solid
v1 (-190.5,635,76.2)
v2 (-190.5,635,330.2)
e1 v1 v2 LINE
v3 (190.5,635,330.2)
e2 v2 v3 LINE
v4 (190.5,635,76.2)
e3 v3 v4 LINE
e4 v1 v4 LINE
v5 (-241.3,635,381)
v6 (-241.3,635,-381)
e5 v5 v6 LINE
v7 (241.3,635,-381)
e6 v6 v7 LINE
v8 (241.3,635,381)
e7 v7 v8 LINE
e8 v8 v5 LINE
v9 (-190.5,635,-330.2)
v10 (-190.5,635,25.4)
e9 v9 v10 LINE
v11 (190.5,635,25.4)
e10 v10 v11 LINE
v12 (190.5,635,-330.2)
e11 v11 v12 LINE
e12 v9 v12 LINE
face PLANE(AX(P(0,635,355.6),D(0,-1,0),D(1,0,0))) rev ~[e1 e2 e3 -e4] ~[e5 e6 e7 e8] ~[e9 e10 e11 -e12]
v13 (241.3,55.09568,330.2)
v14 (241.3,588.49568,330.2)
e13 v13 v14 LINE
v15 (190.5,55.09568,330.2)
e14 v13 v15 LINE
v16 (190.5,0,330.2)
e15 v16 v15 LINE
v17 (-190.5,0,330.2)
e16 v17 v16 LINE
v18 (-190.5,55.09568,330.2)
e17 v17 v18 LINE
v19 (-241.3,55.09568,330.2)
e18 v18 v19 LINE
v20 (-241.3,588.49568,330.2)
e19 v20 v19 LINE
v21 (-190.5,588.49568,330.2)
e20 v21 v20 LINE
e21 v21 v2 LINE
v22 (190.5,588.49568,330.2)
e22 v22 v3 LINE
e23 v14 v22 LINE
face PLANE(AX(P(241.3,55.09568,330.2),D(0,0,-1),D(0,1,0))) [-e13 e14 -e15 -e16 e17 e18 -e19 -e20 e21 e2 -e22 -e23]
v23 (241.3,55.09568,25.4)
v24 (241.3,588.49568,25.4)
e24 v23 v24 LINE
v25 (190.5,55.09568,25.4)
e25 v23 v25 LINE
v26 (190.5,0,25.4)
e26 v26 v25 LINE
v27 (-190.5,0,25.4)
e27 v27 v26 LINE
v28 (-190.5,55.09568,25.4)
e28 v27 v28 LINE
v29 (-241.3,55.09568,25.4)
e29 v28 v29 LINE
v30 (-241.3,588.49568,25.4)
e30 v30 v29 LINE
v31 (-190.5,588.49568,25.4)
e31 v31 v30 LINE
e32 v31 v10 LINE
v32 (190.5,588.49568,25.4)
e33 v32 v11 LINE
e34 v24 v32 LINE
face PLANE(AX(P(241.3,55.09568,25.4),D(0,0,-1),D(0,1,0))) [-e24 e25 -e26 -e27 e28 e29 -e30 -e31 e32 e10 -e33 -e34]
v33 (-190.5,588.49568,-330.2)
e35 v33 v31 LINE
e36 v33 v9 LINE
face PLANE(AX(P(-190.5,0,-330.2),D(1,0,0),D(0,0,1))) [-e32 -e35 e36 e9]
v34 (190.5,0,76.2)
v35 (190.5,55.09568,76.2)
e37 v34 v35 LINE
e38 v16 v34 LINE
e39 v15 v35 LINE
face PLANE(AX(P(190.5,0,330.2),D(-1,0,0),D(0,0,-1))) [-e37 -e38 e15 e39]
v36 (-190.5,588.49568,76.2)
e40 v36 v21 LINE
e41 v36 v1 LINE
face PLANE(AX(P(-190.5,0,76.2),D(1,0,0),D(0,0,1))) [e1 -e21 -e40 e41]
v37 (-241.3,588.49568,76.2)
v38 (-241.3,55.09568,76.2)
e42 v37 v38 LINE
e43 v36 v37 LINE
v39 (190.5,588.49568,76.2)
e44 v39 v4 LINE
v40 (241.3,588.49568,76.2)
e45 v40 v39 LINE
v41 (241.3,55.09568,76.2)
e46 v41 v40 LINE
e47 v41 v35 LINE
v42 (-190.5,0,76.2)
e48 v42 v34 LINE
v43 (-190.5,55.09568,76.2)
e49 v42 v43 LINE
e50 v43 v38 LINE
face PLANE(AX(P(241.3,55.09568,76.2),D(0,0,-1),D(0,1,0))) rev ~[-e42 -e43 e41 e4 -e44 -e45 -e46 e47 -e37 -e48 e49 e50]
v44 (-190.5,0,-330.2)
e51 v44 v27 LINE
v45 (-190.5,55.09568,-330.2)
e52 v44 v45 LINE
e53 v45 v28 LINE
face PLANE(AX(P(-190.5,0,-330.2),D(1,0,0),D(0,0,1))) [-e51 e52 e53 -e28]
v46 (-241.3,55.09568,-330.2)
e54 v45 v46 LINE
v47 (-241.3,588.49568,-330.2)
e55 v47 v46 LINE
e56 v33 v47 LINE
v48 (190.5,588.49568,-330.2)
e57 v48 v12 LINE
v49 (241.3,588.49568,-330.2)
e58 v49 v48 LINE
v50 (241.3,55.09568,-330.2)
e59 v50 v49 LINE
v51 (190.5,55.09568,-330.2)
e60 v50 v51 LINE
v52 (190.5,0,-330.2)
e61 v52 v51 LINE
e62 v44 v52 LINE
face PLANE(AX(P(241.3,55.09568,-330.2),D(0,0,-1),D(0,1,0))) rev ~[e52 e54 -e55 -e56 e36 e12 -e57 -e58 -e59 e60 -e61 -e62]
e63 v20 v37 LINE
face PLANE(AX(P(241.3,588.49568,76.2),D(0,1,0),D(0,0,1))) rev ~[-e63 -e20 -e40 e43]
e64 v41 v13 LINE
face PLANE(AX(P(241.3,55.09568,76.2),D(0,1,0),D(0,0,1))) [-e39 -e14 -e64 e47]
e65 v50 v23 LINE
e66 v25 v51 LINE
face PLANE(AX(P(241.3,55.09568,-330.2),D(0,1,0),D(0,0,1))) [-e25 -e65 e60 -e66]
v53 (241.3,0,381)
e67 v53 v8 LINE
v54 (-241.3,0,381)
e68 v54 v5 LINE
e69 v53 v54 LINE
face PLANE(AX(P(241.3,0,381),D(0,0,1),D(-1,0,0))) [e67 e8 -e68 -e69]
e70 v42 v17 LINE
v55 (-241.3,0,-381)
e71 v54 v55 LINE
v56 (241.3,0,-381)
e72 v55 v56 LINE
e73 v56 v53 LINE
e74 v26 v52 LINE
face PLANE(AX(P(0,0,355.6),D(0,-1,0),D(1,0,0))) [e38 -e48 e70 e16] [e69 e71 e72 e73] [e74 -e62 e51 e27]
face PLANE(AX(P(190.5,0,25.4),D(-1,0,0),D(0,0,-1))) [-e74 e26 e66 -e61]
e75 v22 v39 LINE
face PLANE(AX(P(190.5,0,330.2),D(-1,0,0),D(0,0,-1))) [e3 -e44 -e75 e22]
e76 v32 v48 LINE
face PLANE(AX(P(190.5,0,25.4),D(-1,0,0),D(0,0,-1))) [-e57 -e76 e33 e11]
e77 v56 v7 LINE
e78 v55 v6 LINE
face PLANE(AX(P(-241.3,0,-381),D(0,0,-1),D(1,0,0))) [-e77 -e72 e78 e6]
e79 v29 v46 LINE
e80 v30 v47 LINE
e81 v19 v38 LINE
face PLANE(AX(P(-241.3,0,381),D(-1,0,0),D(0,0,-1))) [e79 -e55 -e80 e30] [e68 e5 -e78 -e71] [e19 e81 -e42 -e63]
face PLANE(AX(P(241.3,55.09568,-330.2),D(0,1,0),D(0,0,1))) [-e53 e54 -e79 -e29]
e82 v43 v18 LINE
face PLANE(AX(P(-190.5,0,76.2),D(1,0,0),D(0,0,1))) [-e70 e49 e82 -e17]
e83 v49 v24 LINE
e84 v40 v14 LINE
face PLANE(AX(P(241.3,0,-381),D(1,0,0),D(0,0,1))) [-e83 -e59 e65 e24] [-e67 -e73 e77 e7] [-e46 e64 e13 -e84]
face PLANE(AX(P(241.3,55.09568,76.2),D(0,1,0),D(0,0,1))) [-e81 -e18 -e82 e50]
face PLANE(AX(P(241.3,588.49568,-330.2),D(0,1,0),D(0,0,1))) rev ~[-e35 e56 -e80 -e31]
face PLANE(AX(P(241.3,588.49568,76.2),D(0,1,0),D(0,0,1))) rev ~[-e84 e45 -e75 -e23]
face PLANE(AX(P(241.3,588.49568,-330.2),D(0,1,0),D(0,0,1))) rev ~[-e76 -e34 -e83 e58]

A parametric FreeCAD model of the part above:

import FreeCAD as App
import Part
import Sketcher
Q = App.Units.Quantity


def add_polygon(sketch, points):
    """Adds a closed chain of lines whose ends are joined by coincident constraints."""
    first, n = sketch.GeometryCount, len(points)
    for a, b in zip(points, points[1:] + points[:1]):
        sketch.addGeometry(Part.LineSegment(App.Vector(*a, 0), App.Vector(*b, 0)), False)
    for i in range(n):
        sketch.addConstraint(Sketcher.Constraint("Coincident", first + i, 2, first + (i + 1) % n, 1))

doc = App.newDocument("Part")
params = doc.addObject("Spreadsheet::Sheet", "Params")
for row, (alias, value) in enumerate([
    ("sketch1_width", "19 in"),
    ("sketch1_width2", "15 in"),
    ("sketch1_height", "30 in"),
    ("sketch1_height2", "14 in"),
    ("sketch1_height3", "10 in"),
    ("pad1_length", "25 in"),
    ("sketch2_width", "21 in"),
    ("sketch2_height", "10 in"),
    ("sketch2_height2", "14 in"),
], start=1):
    params.set(f"A{row}", alias)
    params.set(f"B{row}", "=" + value)
    params.setAlias(f"B{row}", alias)

body = doc.addObject("PartDesign::Body", "Body")

sketch1 = doc.addObject("Sketcher::SketchObject", "Sketch")
body.addObject(sketch1)
sketch1.AttachmentSupport = (doc.XZ_Plane, [""])
sketch1.MapMode = "FlatFace"
add_polygon(sketch1, [(241.3, -381), (241.3, 381), (-241.3, 381), (-241.3, -381)])
add_polygon(sketch1, [(-190.5, 25.4), (190.5, 25.4), (190.5, -330.2), (-190.5, -330.2)])
add_polygon(sketch1, [(190.5, 330.2), (190.5, 76.2), (-190.5, 76.2), (-190.5, 330.2)])
sketch1.addConstraint([
    Sketcher.Constraint("Vertical", 0),
    Sketcher.Constraint("Horizontal", 1),
    Sketcher.Constraint("Vertical", 2),
    Sketcher.Constraint("Horizontal", 3),
    Sketcher.Constraint("Horizontal", 4),
    Sketcher.Constraint("Vertical", 5),
    Sketcher.Constraint("Horizontal", 6),
    Sketcher.Constraint("Vertical", 7),
    Sketcher.Constraint("Vertical", 8),
    Sketcher.Constraint("Horizontal", 9),
    Sketcher.Constraint("Vertical", 10),
    Sketcher.Constraint("Horizontal", 11),
    Sketcher.Constraint("Symmetric", 0, 2, 2, 2, -1, 1),
    Sketcher.Constraint("Symmetric", 5, 2, 10, 2, -1, 1),
    Sketcher.Constraint("Vertical", 5, 2, 8, 2),
    Sketcher.Constraint("Vertical", 7, 2, 9, 2),
    Sketcher.Constraint("DistanceX", 1, 2, 1, 1, Q("19 in")),
    Sketcher.Constraint("DistanceX", 4, 1, 4, 2, Q("15 in")),
    Sketcher.Constraint("DistanceY", 0, 1, 0, 2, Q("30 in")),
    Sketcher.Constraint("DistanceY", 5, 2, 5, 1, Q("14 in")),
    Sketcher.Constraint("DistanceY", 8, 2, 8, 1, Q("10 in")),
    Sketcher.Constraint("DistanceY", -1, 1, 4, 2, Q("1 in")),
])
sketch1.setExpression("Constraints[28]", "Params.sketch1_width")
sketch1.setExpression("Constraints[29]", "Params.sketch1_width2")
sketch1.setExpression("Constraints[30]", "Params.sketch1_height")
sketch1.setExpression("Constraints[31]", "Params.sketch1_height2")
sketch1.setExpression("Constraints[32]", "Params.sketch1_height3")
pad1 = doc.addObject("PartDesign::Pad", "Pad")
body.addObject(pad1)
pad1.Profile = sketch1
pad1.setExpression("Length", "Params.pad1_length")
pad1.Reversed = True

sketch2 = doc.addObject("Sketcher::SketchObject", "Sketch001")
body.addObject(sketch2)
sketch2.AttachmentSupport = (doc.YZ_Plane, [""])
sketch2.MapMode = "FlatFace"
sketch2.AttachmentOffset = App.Placement(App.Vector(0, 0, 9.5 * 25.4), App.Rotation())
add_polygon(sketch2, [(55.09568, 330.2), (55.09568, 76.2), (588.49568, 76.2), (588.49568, 330.2)])
add_polygon(sketch2, [(55.09568, 25.4), (55.09568, -330.2), (588.49568, -330.2), (588.49568, 25.4)])
sketch2.addConstraint([
    Sketcher.Constraint("Vertical", 0),
    Sketcher.Constraint("Horizontal", 1),
    Sketcher.Constraint("Vertical", 2),
    Sketcher.Constraint("Horizontal", 3),
    Sketcher.Constraint("Vertical", 4),
    Sketcher.Constraint("Horizontal", 5),
    Sketcher.Constraint("Vertical", 6),
    Sketcher.Constraint("Horizontal", 7),
    Sketcher.Constraint("Symmetric", 3, 2, 4, 2, -1),
    Sketcher.Constraint("Vertical", 2, 2, 5, 2),
    Sketcher.Constraint("DistanceX", 1, 1, 1, 2, Q("21 in")),
    Sketcher.Constraint("DistanceY", 0, 2, 0, 1, Q("10 in")),
    Sketcher.Constraint("DistanceY", 4, 2, 4, 1, Q("14 in")),
    Sketcher.Constraint("DistanceY", -1, 1, 0, 2, Q("3 in")),
    Sketcher.Constraint("DistanceX", -1, 1, 0, 2, Q("55.09568 mm")),
])
sketch2.setExpression("Constraints[18]", "Params.sketch2_width")
sketch2.setExpression("Constraints[19]", "Params.sketch2_height")
sketch2.setExpression("Constraints[20]", "Params.sketch2_height2")
pocket1 = doc.addObject("PartDesign::Pocket", "Pocket")
body.addObject(pocket1)
pocket1.Profile = sketch2
pocket1.Type = "ThroughAll"

doc.recompute()
